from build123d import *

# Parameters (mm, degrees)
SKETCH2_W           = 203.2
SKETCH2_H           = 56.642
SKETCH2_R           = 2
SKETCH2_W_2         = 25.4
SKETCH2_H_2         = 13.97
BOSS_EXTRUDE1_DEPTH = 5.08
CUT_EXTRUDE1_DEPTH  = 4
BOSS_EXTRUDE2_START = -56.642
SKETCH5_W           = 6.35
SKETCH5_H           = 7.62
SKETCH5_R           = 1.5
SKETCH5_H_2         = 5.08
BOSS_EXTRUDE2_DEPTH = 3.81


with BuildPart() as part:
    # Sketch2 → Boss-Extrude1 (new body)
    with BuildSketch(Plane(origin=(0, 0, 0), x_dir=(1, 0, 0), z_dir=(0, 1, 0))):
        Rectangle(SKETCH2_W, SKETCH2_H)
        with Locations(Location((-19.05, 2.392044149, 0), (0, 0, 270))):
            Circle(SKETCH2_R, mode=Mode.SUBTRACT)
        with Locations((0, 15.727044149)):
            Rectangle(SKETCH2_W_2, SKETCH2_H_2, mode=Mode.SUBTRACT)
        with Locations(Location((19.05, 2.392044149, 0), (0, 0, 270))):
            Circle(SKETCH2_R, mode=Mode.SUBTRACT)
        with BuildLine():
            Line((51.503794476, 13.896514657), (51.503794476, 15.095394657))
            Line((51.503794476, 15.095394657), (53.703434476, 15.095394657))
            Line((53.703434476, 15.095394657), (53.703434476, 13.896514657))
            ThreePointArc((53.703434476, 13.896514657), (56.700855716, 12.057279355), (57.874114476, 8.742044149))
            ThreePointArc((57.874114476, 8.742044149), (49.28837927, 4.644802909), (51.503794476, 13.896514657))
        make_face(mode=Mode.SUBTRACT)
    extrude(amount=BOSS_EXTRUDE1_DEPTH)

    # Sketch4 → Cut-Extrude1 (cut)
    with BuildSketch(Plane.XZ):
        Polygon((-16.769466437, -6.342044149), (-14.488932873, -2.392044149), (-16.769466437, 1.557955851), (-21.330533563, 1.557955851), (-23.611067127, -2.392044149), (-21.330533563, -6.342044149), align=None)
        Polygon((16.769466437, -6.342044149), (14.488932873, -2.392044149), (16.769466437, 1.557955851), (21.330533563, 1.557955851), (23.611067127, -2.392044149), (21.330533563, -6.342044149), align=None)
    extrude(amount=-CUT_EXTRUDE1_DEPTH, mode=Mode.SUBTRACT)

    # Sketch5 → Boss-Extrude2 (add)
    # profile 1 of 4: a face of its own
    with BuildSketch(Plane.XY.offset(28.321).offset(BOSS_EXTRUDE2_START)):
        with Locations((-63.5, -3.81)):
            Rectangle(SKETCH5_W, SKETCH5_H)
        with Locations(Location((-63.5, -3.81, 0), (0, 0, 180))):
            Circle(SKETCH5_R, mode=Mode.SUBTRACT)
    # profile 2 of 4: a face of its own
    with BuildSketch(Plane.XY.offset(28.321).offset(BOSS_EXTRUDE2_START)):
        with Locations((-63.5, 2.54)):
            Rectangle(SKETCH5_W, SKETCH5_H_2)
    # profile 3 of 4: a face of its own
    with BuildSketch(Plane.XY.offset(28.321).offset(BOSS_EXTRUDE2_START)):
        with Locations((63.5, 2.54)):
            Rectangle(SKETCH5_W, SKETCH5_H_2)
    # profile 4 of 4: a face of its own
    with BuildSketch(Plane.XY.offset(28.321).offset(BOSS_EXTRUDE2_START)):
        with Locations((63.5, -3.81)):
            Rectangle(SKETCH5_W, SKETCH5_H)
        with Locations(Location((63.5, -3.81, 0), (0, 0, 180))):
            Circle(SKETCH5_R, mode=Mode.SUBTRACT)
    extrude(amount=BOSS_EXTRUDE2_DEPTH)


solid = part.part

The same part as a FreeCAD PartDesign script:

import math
import FreeCAD as App
import Part
import Sketcher
from FreeCAD import Vector
Q = App.Units.Quantity

doc = App.newDocument("Part")
body = doc.addObject("PartDesign::Body", "Body")

# Sketch on XZ plane
sketch1 = doc.addObject("Sketcher::SketchObject", "Sketch")
body.addObject(sketch1)
sketch1.AttachmentSupport = (doc.XZ_Plane, [""])
sketch1.MapMode = "FlatFace"
sketch1.addGeometry(Part.LineSegment(Vector(-101.6, -28.3, 0), Vector(-101.6, 28.3, 0)), False)
sketch1.addGeometry(Part.LineSegment(Vector(-101.6, 28.3, 0), Vector(101.6, 28.3, 0)), False)
sketch1.addGeometry(Part.LineSegment(Vector(101.6, 28.3, 0), Vector(101.6, -28.3, 0)), False)
sketch1.addGeometry(Part.LineSegment(Vector(101.6, -28.3, 0), Vector(-101.6, -28.3, 0)), False)
sketch1.addGeometry(Part.Circle(Vector(-19.1, -2.4, 0), Vector(0, 0, 1), 2), False)
sketch1.addGeometry(Part.Circle(Vector(19.1, -2.4, 0), Vector(0, 0, 1), 2), False)
sketch1.addGeometry(Part.ArcOfCircle(Part.Circle(Vector(52.6, -8.7, 0), Vector(0, 0, 1), 5.3), math.radians(0), math.radians(258)), False)
sketch1.addGeometry(Part.LineSegment(Vector(51.5, -13.9, 0), Vector(51.5, -15.1, 0)), False)
sketch1.addGeometry(Part.LineSegment(Vector(51.5, -15.1, 0), Vector(53.7, -15.1, 0)), False)
sketch1.addGeometry(Part.LineSegment(Vector(53.7, -15.1, 0), Vector(53.7, -13.9, 0)), False)
sketch1.addGeometry(Part.ArcOfCircle(Part.Circle(Vector(52.6, -8.7, 0), Vector(0, 0, 1), 5.3), math.radians(-78), math.radians(0)), False)
sketch1.addGeometry(Part.LineSegment(Vector(12.7, -8.7, 0), Vector(-12.7, -8.7, 0)), False)
sketch1.addGeometry(Part.LineSegment(Vector(-12.7, -8.7, 0), Vector(-12.7, -22.7, 0)), False)
sketch1.addGeometry(Part.LineSegment(Vector(-12.7, -22.7, 0), Vector(12.7, -22.7, 0)), False)
sketch1.addGeometry(Part.LineSegment(Vector(12.7, -22.7, 0), Vector(12.7, -8.7, 0)), False)
sketch1.addConstraint(Sketcher.Constraint("Coincident", 0, 2, 1, 1))
sketch1.addConstraint(Sketcher.Constraint("Coincident", 1, 2, 2, 1))
sketch1.addConstraint(Sketcher.Constraint("Coincident", 2, 2, 3, 1))
sketch1.addConstraint(Sketcher.Constraint("Coincident", 3, 2, 0, 1))
sketch1.addConstraint(Sketcher.Constraint("Coincident", 6, 2, 7, 1))
sketch1.addConstraint(Sketcher.Constraint("Coincident", 7, 2, 8, 1))
sketch1.addConstraint(Sketcher.Constraint("Coincident", 8, 2, 9, 1))
sketch1.addConstraint(Sketcher.Constraint("Coincident", 9, 2, 10, 1))
sketch1.addConstraint(Sketcher.Constraint("Tangent", 10, 2, 6, 1))
sketch1.addConstraint(Sketcher.Constraint("Coincident", 11, 2, 12, 1))
sketch1.addConstraint(Sketcher.Constraint("Coincident", 12, 2, 13, 1))
sketch1.addConstraint(Sketcher.Constraint("Coincident", 13, 2, 14, 1))
sketch1.addConstraint(Sketcher.Constraint("Coincident", 14, 2, 11, 1))
sketch1.addConstraint(Sketcher.Constraint("Vertical", 0))
sketch1.addConstraint(Sketcher.Constraint("Horizontal", 1))
sketch1.addConstraint(Sketcher.Constraint("Vertical", 2))
sketch1.addConstraint(Sketcher.Constraint("Horizontal", 3))
sketch1.addConstraint(Sketcher.Constraint("Vertical", 7))
sketch1.addConstraint(Sketcher.Constraint("Horizontal", 8))
sketch1.addConstraint(Sketcher.Constraint("Vertical", 9))
sketch1.addConstraint(Sketcher.Constraint("Horizontal", 11))
sketch1.addConstraint(Sketcher.Constraint("Vertical", 12))
sketch1.addConstraint(Sketcher.Constraint("Horizontal", 13))
sketch1.addConstraint(Sketcher.Constraint("Vertical", 14))
sketch1.addConstraint(Sketcher.Constraint("Equal", 4, 5))
sketch1.addConstraint(Sketcher.Constraint("Equal", 6, 10))
sketch1.addConstraint(Sketcher.Constraint("Symmetric", 0, 2, 2, 2, -1, 1))
sketch1.addConstraint(Sketcher.Constraint("Symmetric", 4, 3, 5, 3, -2))
sketch1.addConstraint(Sketcher.Constraint("Horizontal", 6, 2, 9, 2))
sketch1.addConstraint(Sketcher.Constraint("Horizontal", 6, 3, 10, 2))
sketch1.addConstraint(Sketcher.Constraint("Horizontal", 10, 2, 11, 2))
sketch1.addConstraint(Sketcher.Constraint("DistanceX", 1, 1, 1, 2, Q("8 in")))
sketch1.addConstraint(Sketcher.Constraint("DistanceX", 11, 2, 11, 1, Q("1 in")))
sketch1.addConstraint(Sketcher.Constraint("DistanceY", 0, 1, 0, 2, Q("2.23 in")))
sketch1.addConstraint(Sketcher.Constraint("DistanceY", 12, 2, 12, 1, Q("0.55 in")))
sketch1.addConstraint(Sketcher.Constraint("DistanceX", 11, 2, -1, 1, Q("0.5 in")))
sketch1.addConstraint(Sketcher.Constraint("Radius", 6, Q("0.2075 in")))
sketch1.addConstraint(Sketcher.Constraint("DistanceX", 4, 3, 5, 3, Q("1.5 in")))
sketch1.addConstraint(Sketcher.Constraint("DistanceY", 12, 2, 4, 3, Q("0.8 in")))
sketch1.addConstraint(Sketcher.Constraint("Diameter", 4, 4.0))
sketch1.addConstraint(Sketcher.Constraint("DistanceX", 8, 1, 8, 2, Q("0.0866 in")))
sketch1.addConstraint(Sketcher.Constraint("DistanceY", 7, 2, 7, 1, Q("0.0472 in")))
sketch1.addConstraint(Sketcher.Constraint("DistanceY", 4, 3, -1, 1, 2.392044))
sketch1.addConstraint(Sketcher.Constraint("DistanceX", -1, 1, 6, 3, 52.603614))
pad1 = doc.addObject("PartDesign::Pad", "Pad")
body.addObject(pad1)
pad1.Profile = sketch1
pad1.Length = Q("0.2 in")
pad1.Reversed = True

# Sketch on XZ plane
sketch2 = doc.addObject("Sketcher::SketchObject", "Sketch001")
body.addObject(sketch2)
sketch2.AttachmentSupport = (doc.XZ_Plane, [""])
sketch2.MapMode = "FlatFace"
sketch2.addGeometry(Part.LineSegment(Vector(-16.8, -6.3, 0), Vector(-14.5, -2.4, 0)), False)
sketch2.addGeometry(Part.LineSegment(Vector(-14.5, -2.4, 0), Vector(-16.8, 1.6, 0)), False)
sketch2.addGeometry(Part.LineSegment(Vector(-16.8, 1.6, 0), Vector(-21.3, 1.6, 0)), False)
sketch2.addGeometry(Part.LineSegment(Vector(-21.3, 1.6, 0), Vector(-23.6, -2.4, 0)), False)
sketch2.addGeometry(Part.LineSegment(Vector(-23.6, -2.4, 0), Vector(-21.3, -6.3, 0)), False)
sketch2.addGeometry(Part.LineSegment(Vector(-21.3, -6.3, 0), Vector(-16.8, -6.3, 0)), False)
sketch2.addGeometry(Part.LineSegment(Vector(14.5, -2.4, 0), Vector(16.8, -6.3, 0)), False)
sketch2.addGeometry(Part.LineSegment(Vector(16.8, -6.3, 0), Vector(21.3, -6.3, 0)), False)
sketch2.addGeometry(Part.LineSegment(Vector(21.3, -6.3, 0), Vector(23.6, -2.4, 0)), False)
sketch2.addGeometry(Part.LineSegment(Vector(23.6, -2.4, 0), Vector(21.3, 1.6, 0)), False)
sketch2.addGeometry(Part.LineSegment(Vector(21.3, 1.6, 0), Vector(16.8, 1.6, 0)), False)
sketch2.addGeometry(Part.LineSegment(Vector(16.8, 1.6, 0), Vector(14.5, -2.4, 0)), False)
sketch2.addConstraint(Sketcher.Constraint("Coincident", 0, 2, 1, 1))
sketch2.addConstraint(Sketcher.Constraint("Coincident", 1, 2, 2, 1))
sketch2.addConstraint(Sketcher.Constraint("Coincident", 2, 2, 3, 1))
sketch2.addConstraint(Sketcher.Constraint("Coincident", 3, 2, 4, 1))
sketch2.addConstraint(Sketcher.Constraint("Coincident", 4, 2, 5, 1))
sketch2.addConstraint(Sketcher.Constraint("Coincident", 5, 2, 0, 1))
sketch2.addConstraint(Sketcher.Constraint("Coincident", 6, 2, 7, 1))
sketch2.addConstraint(Sketcher.Constraint("Coincident", 7, 2, 8, 1))
sketch2.addConstraint(Sketcher.Constraint("Coincident", 8, 2, 9, 1))
sketch2.addConstraint(Sketcher.Constraint("Coincident", 9, 2, 10, 1))
sketch2.addConstraint(Sketcher.Constraint("Coincident", 10, 2, 11, 1))
sketch2.addConstraint(Sketcher.Constraint("Coincident", 11, 2, 6, 1))
sketch2.addConstraint(Sketcher.Constraint("Horizontal", 2))
sketch2.addConstraint(Sketcher.Constraint("Horizontal", 5))
sketch2.addConstraint(Sketcher.Constraint("Horizontal", 7))
sketch2.addConstraint(Sketcher.Constraint("Horizontal", 10))
sketch2.addConstraint(Sketcher.Constraint("Symmetric", 5, 2, 6, 2, -2))
sketch2.addConstraint(Sketcher.Constraint("Symmetric", 3, 2, 8, 2, -2))
sketch2.addConstraint(Sketcher.Constraint("Symmetric", 2, 2, 9, 2, -2))
sketch2.addConstraint(Sketcher.Constraint("Symmetric", 0, 2, 11, 2, -2))
sketch2.addConstraint(Sketcher.Constraint("Parallel", 0, 3))
sketch2.addConstraint(Sketcher.Constraint("Parallel", 1, 4))
sketch2.addConstraint(Sketcher.Constraint("Parallel", 4, 6))
sketch2.addConstraint(Sketcher.Constraint("Parallel", 3, 8))
sketch2.addConstraint(Sketcher.Constraint("Parallel", 8, 11))
sketch2.addConstraint(Sketcher.Constraint("Horizontal", 0, 2, 3, 2))
sketch2.addConstraint(Sketcher.Constraint("Vertical", 2, 2, 4, 2))
sketch2.addConstraint(Sketcher.Constraint("Angle", 0, Q("60 deg")))
sketch2.addConstraint(Sketcher.Constraint("DistanceX", 4, 2, 6, 2, Q("1.5 in")))
sketch2.addConstraint(Sketcher.Constraint("DistanceY", 0, 2, 1, 2, 3.95))
sketch2.addConstraint(Sketcher.Constraint("DistanceX", 2, 2, 0, 2, 6.841601))
sketch2.addConstraint(Sketcher.Constraint("DistanceY", 0, 2, -1, 1, 2.392044))
pocket1 = doc.addObject("PartDesign::Pocket", "Pocket")
body.addObject(pocket1)
pocket1.Profile = sketch2
pocket1.Length = 4

# Sketch on XY plane
sketch3 = doc.addObject("Sketcher::SketchObject", "Sketch002")
body.addObject(sketch3)
sketch3.AttachmentSupport = (doc.XY_Plane, [""])
sketch3.MapMode = "FlatFace"
sketch3.AttachmentOffset = App.Placement(Vector(0, 0, -1.115 * 25.4), App.Rotation())
sketch3.addGeometry(Part.LineSegment(Vector(-66.7, -7.6, 0), Vector(-60.3, -7.6, 0)), False)
sketch3.addGeometry(Part.LineSegment(Vector(-60.3, -7.6, 0), Vector(-60.3, 5.1, 0)), False)
sketch3.addGeometry(Part.LineSegment(Vector(-60.3, 5.1, 0), Vector(-66.7, 5.1, 0)), False)
sketch3.addGeometry(Part.LineSegment(Vector(-66.7, 5.1, 0), Vector(-66.7, -7.6, 0)), False)
sketch3.addGeometry(Part.Circle(Vector(-63.5, -3.8, 0), Vector(0, 0, 1), 1.5), False)
sketch3.addGeometry(Part.LineSegment(Vector(60.3, 5.1, 0), Vector(60.3, -7.6, 0)), False)
sketch3.addGeometry(Part.LineSegment(Vector(60.3, -7.6, 0), Vector(66.7, -7.6, 0)), False)
sketch3.addGeometry(Part.LineSegment(Vector(66.7, -7.6, 0), Vector(66.7, 5.1, 0)), False)
sketch3.addGeometry(Part.LineSegment(Vector(66.7, 5.1, 0), Vector(60.3, 5.1, 0)), False)
sketch3.addGeometry(Part.Circle(Vector(63.5, -3.8, 0), Vector(0, 0, 1), 1.5), False)
sketch3.addConstraint(Sketcher.Constraint("Coincident", 0, 2, 1, 1))
sketch3.addConstraint(Sketcher.Constraint("Coincident", 1, 2, 2, 1))
sketch3.addConstraint(Sketcher.Constraint("Coincident", 2, 2, 3, 1))
sketch3.addConstraint(Sketcher.Constraint("Coincident", 3, 2, 0, 1))
sketch3.addConstraint(Sketcher.Constraint("Coincident", 5, 2, 6, 1))
sketch3.addConstraint(Sketcher.Constraint("Coincident", 6, 2, 7, 1))
sketch3.addConstraint(Sketcher.Constraint("Coincident", 7, 2, 8, 1))
sketch3.addConstraint(Sketcher.Constraint("Coincident", 8, 2, 5, 1))
sketch3.addConstraint(Sketcher.Constraint("Horizontal", 0))
sketch3.addConstraint(Sketcher.Constraint("Vertical", 1))
sketch3.addConstraint(Sketcher.Constraint("Horizontal", 2))
sketch3.addConstraint(Sketcher.Constraint("Vertical", 3))
sketch3.addConstraint(Sketcher.Constraint("Vertical", 5))
sketch3.addConstraint(Sketcher.Constraint("Horizontal", 6))
sketch3.addConstraint(Sketcher.Constraint("Vertical", 7))
sketch3.addConstraint(Sketcher.Constraint("Horizontal", 8))
sketch3.addConstraint(Sketcher.Constraint("Equal", 4, 9))
sketch3.addConstraint(Sketcher.Constraint("Symmetric", 4, 3, 9, 3, -2))
sketch3.addConstraint(Sketcher.Constraint("Symmetric", 0, 2, 5, 2, -2))
sketch3.addConstraint(Sketcher.Constraint("Symmetric", 2, 2, 7, 2, -2))
sketch3.addConstraint(Sketcher.Constraint("DistanceY", 1, 1, 1, 2, Q("0.5 in")))
sketch3.addConstraint(Sketcher.Constraint("DistanceX", 4, 3, 9, 3, Q("5 in")))
sketch3.addConstraint(Sketcher.Constraint("DistanceX", 3, 2, 5, 2, Q("5 in")))
sketch3.addConstraint(Sketcher.Constraint("DistanceX", 0, 1, 0, 2, Q("0.25 in")))
sketch3.addConstraint(Sketcher.Constraint("DistanceY", 0, 2, -1, 1, Q("0.3 in")))
sketch3.addConstraint(Sketcher.Constraint("Diameter", 4, 3.0))
sketch3.addConstraint(Sketcher.Constraint("DistanceY", 4, 3, -1, 1, Q("0.15 in")))
pad2 = doc.addObject("PartDesign::Pad", "Pad001")
body.addObject(pad2)
pad2.Profile = sketch3
pad2.Length = Q("0.15 in")

doc.recompute()
